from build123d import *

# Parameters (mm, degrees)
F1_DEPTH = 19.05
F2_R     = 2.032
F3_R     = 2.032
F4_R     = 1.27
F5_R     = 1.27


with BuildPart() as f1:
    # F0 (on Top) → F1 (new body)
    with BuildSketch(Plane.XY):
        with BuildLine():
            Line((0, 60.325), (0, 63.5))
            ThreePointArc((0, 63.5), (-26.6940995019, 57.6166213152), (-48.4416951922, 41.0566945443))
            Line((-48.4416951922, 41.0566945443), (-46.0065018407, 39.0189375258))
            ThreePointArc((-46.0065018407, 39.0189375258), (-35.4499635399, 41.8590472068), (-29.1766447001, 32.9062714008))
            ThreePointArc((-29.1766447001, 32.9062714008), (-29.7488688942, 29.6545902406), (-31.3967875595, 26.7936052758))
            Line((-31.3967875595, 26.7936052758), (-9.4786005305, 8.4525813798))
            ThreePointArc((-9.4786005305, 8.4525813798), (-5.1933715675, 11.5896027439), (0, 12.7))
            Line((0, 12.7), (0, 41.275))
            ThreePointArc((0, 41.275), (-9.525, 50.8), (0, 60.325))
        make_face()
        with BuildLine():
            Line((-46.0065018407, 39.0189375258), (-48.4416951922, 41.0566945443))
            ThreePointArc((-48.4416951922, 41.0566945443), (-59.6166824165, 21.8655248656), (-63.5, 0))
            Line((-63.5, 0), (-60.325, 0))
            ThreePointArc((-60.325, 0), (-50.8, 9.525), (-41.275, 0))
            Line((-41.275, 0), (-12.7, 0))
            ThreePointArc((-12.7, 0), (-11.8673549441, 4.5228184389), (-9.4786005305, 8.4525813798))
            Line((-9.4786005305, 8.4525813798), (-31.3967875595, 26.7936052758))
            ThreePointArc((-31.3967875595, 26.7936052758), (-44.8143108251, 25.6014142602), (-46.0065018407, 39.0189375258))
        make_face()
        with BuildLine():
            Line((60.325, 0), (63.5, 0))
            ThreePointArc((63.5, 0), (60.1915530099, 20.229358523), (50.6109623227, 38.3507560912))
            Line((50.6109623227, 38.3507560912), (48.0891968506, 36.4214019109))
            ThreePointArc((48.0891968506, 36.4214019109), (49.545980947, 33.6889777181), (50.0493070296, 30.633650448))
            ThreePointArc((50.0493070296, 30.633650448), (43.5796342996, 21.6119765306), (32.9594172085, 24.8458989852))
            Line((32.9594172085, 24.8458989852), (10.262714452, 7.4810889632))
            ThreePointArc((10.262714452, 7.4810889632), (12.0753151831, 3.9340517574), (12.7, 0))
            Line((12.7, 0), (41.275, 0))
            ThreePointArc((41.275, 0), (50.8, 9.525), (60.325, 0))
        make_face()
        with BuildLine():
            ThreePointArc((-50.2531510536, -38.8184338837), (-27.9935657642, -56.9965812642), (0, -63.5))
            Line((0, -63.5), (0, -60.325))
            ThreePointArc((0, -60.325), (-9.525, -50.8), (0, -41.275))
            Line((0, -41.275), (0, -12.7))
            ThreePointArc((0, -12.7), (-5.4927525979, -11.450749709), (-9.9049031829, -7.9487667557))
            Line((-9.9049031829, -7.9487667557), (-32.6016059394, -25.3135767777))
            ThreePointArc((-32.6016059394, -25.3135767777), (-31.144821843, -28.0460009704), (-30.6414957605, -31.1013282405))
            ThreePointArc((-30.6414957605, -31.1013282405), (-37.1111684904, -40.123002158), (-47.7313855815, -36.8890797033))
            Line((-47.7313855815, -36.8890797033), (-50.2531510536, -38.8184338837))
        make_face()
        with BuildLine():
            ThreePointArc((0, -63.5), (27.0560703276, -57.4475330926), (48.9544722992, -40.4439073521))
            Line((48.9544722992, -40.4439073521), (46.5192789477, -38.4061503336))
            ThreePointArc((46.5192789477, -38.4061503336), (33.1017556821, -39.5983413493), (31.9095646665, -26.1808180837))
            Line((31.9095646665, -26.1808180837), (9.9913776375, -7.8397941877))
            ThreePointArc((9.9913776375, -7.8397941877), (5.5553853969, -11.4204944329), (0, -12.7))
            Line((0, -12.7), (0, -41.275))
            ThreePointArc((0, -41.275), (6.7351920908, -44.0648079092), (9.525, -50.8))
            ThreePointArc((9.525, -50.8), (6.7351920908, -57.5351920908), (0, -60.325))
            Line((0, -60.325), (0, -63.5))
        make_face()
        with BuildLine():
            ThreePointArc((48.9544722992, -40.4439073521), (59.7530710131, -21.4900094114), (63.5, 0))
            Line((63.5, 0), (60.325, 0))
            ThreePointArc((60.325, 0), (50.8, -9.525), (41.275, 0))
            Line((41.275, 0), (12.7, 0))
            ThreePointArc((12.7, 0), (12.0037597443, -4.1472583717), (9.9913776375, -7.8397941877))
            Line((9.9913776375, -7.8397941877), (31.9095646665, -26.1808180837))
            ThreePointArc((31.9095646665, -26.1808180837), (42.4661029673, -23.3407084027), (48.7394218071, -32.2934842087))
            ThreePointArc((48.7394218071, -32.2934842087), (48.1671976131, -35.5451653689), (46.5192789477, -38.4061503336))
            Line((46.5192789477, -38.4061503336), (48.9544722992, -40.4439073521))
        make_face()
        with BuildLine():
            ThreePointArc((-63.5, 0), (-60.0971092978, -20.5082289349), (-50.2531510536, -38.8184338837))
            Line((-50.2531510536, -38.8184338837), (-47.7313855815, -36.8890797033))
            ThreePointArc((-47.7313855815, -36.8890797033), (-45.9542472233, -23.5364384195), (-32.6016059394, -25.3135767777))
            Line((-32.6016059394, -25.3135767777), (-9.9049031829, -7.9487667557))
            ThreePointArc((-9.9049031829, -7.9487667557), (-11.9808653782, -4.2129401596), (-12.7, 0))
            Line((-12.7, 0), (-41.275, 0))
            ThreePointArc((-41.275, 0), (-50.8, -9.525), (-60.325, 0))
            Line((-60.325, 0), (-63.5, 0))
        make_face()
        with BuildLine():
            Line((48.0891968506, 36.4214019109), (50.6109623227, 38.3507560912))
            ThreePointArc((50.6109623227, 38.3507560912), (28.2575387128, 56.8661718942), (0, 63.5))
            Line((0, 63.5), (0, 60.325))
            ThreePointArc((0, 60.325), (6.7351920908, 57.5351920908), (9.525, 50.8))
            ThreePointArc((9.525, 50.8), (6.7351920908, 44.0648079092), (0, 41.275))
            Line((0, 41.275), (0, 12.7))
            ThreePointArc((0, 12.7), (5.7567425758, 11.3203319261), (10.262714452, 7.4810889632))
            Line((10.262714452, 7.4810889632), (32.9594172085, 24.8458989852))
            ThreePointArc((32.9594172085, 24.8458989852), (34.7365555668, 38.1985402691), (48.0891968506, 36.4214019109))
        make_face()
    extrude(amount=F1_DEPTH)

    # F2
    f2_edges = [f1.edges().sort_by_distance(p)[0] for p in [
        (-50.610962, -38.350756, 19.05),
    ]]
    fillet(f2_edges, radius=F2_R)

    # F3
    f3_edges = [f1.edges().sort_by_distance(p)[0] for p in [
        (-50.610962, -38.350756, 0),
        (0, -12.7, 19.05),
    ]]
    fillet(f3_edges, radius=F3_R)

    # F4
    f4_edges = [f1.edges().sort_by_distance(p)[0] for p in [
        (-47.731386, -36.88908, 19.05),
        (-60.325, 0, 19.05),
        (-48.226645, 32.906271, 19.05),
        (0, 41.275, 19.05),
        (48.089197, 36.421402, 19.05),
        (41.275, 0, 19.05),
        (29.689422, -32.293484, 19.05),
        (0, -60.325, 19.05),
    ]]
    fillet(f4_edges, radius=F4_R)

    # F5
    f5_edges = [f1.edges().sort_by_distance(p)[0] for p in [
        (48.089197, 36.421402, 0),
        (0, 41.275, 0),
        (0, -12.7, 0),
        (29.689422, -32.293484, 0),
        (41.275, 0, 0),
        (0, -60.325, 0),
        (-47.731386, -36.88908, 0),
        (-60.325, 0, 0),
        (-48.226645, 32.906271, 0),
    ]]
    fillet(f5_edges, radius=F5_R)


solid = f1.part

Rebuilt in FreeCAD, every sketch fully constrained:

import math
import FreeCAD as App
import Part
import Sketcher
Q = App.Units.Quantity


def edges_at(feature, points):
    """Names of the edges that pass closest to the given points."""
    edges = feature.Shape.Edges
    near = lambda p: min(range(len(edges)), key=lambda i: edges[i].distToShape(Part.Vertex(*p))[0])
    return sorted({f"Edge{near(p) + 1}" for p in points})

doc = App.newDocument("Part")
body = doc.addObject("PartDesign::Body", "Body")

# Sketch on XY plane
sketch1 = body.newObject("Sketcher::SketchObject", "Sketch")
sketch1.AttachmentSupport = (doc.getObject("XY_Plane"), [""])
sketch1.MapMode = "FlatFace"
sketch1.addGeometry([
    Part.ArcOfCircle(Part.Circle(App.Vector(0, 0, 0), App.Vector(0, 0, 1), 64), math.radians(90), math.radians(140)),  # 0
    Part.ArcOfCircle(Part.Circle(App.Vector(0, 0, 0), App.Vector(0, 0, 1), 64), math.radians(140), math.radians(180)),  # 1
    Part.ArcOfCircle(Part.Circle(App.Vector(0, 0, 0), App.Vector(0, 0, 1), 64), math.radians(180), math.radians(320)),  # 2
    Part.ArcOfCircle(Part.Circle(App.Vector(0, 0, 0), App.Vector(0, 0, 1), 64), math.radians(-40), math.radians(0)),  # 3
    Part.ArcOfCircle(Part.Circle(App.Vector(0, 0, 0), App.Vector(0, 0, 1), 64), math.radians(0), math.radians(37)),  # 4
    Part.ArcOfCircle(Part.Circle(App.Vector(0, 0, 0), App.Vector(0, 0, 1), 63), math.radians(37), math.radians(90)),  # 5
    Part.ArcOfCircle(Part.Circle(App.Vector(41, 31, 0), App.Vector(0, 0, 1), 10), math.radians(0), math.radians(37)),  # 6
    Part.ArcOfCircle(Part.Circle(App.Vector(41, 31, 0), App.Vector(0, 0, 1), 10), math.radians(-143), math.radians(0)),  # 7
    Part.ArcOfCircle(Part.Circle(App.Vector(41, 31, 0), App.Vector(0, 0, 1), 10), math.radians(37), math.radians(217)),  # 8
    Part.ArcOfCircle(Part.Circle(App.Vector(0, 0, 0), App.Vector(0, 0, 1), 13), math.radians(0), math.radians(36)),  # 9
    Part.ArcOfCircle(Part.Circle(App.Vector(0, 0, 0), App.Vector(0, 0, 1), 13), math.radians(-38), math.radians(0)),  # 10
    Part.ArcOfCircle(Part.Circle(App.Vector(0, 0, 0), App.Vector(0, 0, 1), 13), math.radians(-141), math.radians(-38)),  # 11
    Part.ArcOfCircle(Part.Circle(App.Vector(0, 0, 0), App.Vector(0, 0, 1), 13), math.radians(180), math.radians(219)),  # 12
    Part.ArcOfCircle(Part.Circle(App.Vector(0, 0, 0), App.Vector(0, 0, 1), 13), math.radians(138), math.radians(180)),  # 13
    Part.ArcOfCircle(Part.Circle(App.Vector(0, 0, 0), App.Vector(0, 0, 1), 13), math.radians(90), math.radians(138)),  # 14
    Part.ArcOfCircle(Part.Circle(App.Vector(0, 0, 0), App.Vector(0, 0, 1), 13), math.radians(36), math.radians(90)),  # 15
    Part.Circle(App.Vector(0, 51, 0), App.Vector(0, 0, 1), 10),  # 16
    Part.Circle(App.Vector(-51, 0, 0), App.Vector(0, 0, 1), 10),  # 17
    Part.ArcOfCircle(Part.Circle(App.Vector(-39, 33, 0), App.Vector(0, 0, 1), 10), math.radians(-40), math.radians(0)),  # 18
    Part.ArcOfCircle(Part.Circle(App.Vector(-39, 33, 0), App.Vector(0, 0, 1), 10), math.radians(0), math.radians(320)),  # 19
    Part.ArcOfCircle(Part.Circle(App.Vector(-40, -31, 0), App.Vector(0, 0, 1), 10), math.radians(37), math.radians(217)),  # 20
    Part.ArcOfCircle(Part.Circle(App.Vector(-40, -31, 0), App.Vector(0, 0, 1), 10), math.radians(0), math.radians(37)),  # 21
    Part.ArcOfCircle(Part.Circle(App.Vector(-40, -31, 0), App.Vector(0, 0, 1), 10), math.radians(-143), math.radians(0)),  # 22
    Part.ArcOfCircle(Part.Circle(App.Vector(39, -32, 0), App.Vector(0, 0, 1), 10), math.radians(0), math.radians(140)),  # 23
    Part.ArcOfCircle(Part.Circle(App.Vector(39, -32, 0), App.Vector(0, 0, 1), 10), math.radians(-40), math.radians(0)),  # 24
    Part.ArcOfCircle(Part.Circle(App.Vector(39, -32, 0), App.Vector(0, 0, 1), 10), math.radians(140), math.radians(320)),  # 25
    Part.Circle(App.Vector(0, -51, 0), App.Vector(0, 0, 1), 10),  # 26
    Part.Circle(App.Vector(51, 0, 0), App.Vector(0, 0, 1), 10),  # 27
], False)
sketch1.addConstraint([
    Sketcher.Constraint("Tangent", 0, 2, 1, 1),
    Sketcher.Constraint("Tangent", 1, 2, 2, 1),
    Sketcher.Constraint("Tangent", 2, 2, 3, 1),
    Sketcher.Constraint("Tangent", 3, 2, 4, 1),
    Sketcher.Constraint("Tangent", 4, 2, 5, 1),
    Sketcher.Constraint("Tangent", 5, 2, 0, 1),
    Sketcher.Constraint("Tangent", 6, 1, 7, 2),
    Sketcher.Constraint("Tangent", 7, 1, 8, 2),
    Sketcher.Constraint("Tangent", 8, 1, 6, 2),
    Sketcher.Constraint("Tangent", 9, 1, 10, 2),
    Sketcher.Constraint("Tangent", 10, 1, 11, 2),
    Sketcher.Constraint("Tangent", 11, 1, 12, 2),
    Sketcher.Constraint("Tangent", 12, 1, 13, 2),
    Sketcher.Constraint("Tangent", 13, 1, 14, 2),
    Sketcher.Constraint("Tangent", 14, 1, 15, 2),
    Sketcher.Constraint("Tangent", 15, 1, 9, 2),
    Sketcher.Constraint("Tangent", 18, 1, 19, 2),
    Sketcher.Constraint("Coincident", 19, 1, 18, 2),
    Sketcher.Constraint("Tangent", 20, 1, 21, 2),
    Sketcher.Constraint("Tangent", 21, 1, 22, 2),
    Sketcher.Constraint("Tangent", 22, 1, 20, 2),
    Sketcher.Constraint("Tangent", 23, 1, 24, 2),
    Sketcher.Constraint("Tangent", 24, 1, 25, 2),
    Sketcher.Constraint("Tangent", 25, 1, 23, 2),
    Sketcher.Constraint("Coincident", 0, 3, -1, 1),
    Sketcher.Constraint("Coincident", 2, 3, -1, 1),
    Sketcher.Constraint("Coincident", 9, 3, -1, 1),
    Sketcher.Constraint("Coincident", 11, 3, -1, 1),
    Sketcher.Constraint("Coincident", 13, 3, -1, 1),
    Sketcher.Constraint("Equal", 2, 3),
    Sketcher.Constraint("Equal", 8, 16),
    Sketcher.Constraint("Equal", 16, 17),
    Sketcher.Constraint("Equal", 17, 18),
    Sketcher.Constraint("Equal", 19, 20),
    Sketcher.Constraint("Equal", 22, 23),
    Sketcher.Constraint("Equal", 25, 26),
    Sketcher.Constraint("Equal", 26, 27),
    Sketcher.Constraint("Symmetric", 16, 3, 26, 3, -1, 1),
    Sketcher.Constraint("Symmetric", 17, 3, 27, 3, -1, 1),
    Sketcher.Constraint("PointOnObject", 16, 3, -2),
    Sketcher.Constraint("PointOnObject", 17, 3, -1),
    Sketcher.Constraint("PointOnObject", 1, 2, -1),
    Sketcher.Constraint("PointOnObject", 3, 2, -1),
    Sketcher.Constraint("PointOnObject", 5, 2, -2),
    Sketcher.Constraint("PointOnObject", 9, 1, -1),
    Sketcher.Constraint("PointOnObject", 12, 1, -1),
    Sketcher.Constraint("PointOnObject", 14, 1, -2),
    Sketcher.Constraint("Horizontal", 8, 3, 6, 1),
    Sketcher.Constraint("Horizontal", 18, 3, 19, 1),
    Sketcher.Constraint("Horizontal", 22, 3, 21, 1),
    Sketcher.Constraint("Horizontal", 25, 3, 23, 1),
    Sketcher.Constraint("Radius", 0, Q("2.5 in")),
    Sketcher.Constraint("Radius", 9, Q("0.5 in")),
    Sketcher.Constraint("Diameter", 16, Q("0.75 in")),
    Sketcher.Constraint("DistanceY", -1, 1, 16, 3, Q("2 in")),
    Sketcher.Constraint("DistanceX", 17, 3, -1, 1, Q("2 in")),
    Sketcher.Constraint("DistanceY", -1, 1, 7, 1, Q("24.845899 mm")),
    Sketcher.Constraint("DistanceY", -1, 1, 8, 1, Q("36.421402 mm")),
    Sketcher.Constraint("DistanceX", 13, 1, -1, 1, Q("9.478601 mm")),
    Sketcher.Constraint("DistanceY", -1, 1, 6, 3, Q("30.63365 mm")),
    Sketcher.Constraint("DistanceY", -1, 1, 18, 3, Q("32.906271 mm")),
    Sketcher.Constraint("DistanceY", 20, 3, -1, 1, Q("31.101328 mm")),
    Sketcher.Constraint("DistanceX", -1, 1, 23, 3, Q("39.214422 mm")),
    Sketcher.Constraint("DistanceY", -1, 1, 15, 1, Q("7.481089 mm")),
    Sketcher.Constraint("DistanceY", 22, 1, -1, 1, Q("36.88908 mm")),
    Sketcher.Constraint("DistanceX", -1, 1, 24, 1, Q("46.519279 mm")),
    Sketcher.Constraint("DistanceY", 24, 1, -1, 1, Q("38.40615 mm")),
    Sketcher.Constraint("DistanceY", 25, 1, -1, 1, Q("26.180818 mm")),
    Sketcher.Constraint("DistanceX", 0, 2, 18, 3, Q("9.74005 mm")),
    Sketcher.Constraint("DistanceX", 24, 3, 2, 2, Q("9.74005 mm")),
    Sketcher.Constraint("DistanceY", 18, 1, 0, 2, Q("14.263089 mm")),
    Sketcher.Constraint("DistanceX", 21, 3, 20, 1, Q("7.56489 mm")),
    Sketcher.Constraint("DistanceY", 20, 1, 11, 1, Q("17.36481 mm")),
    Sketcher.Constraint("DistanceX", -1, 1, 6, 3, Q("40.524307 mm")),
    Sketcher.Constraint("DistanceX", 18, 3, -1, 1, Q("38.701645 mm")),
    Sketcher.Constraint("DistanceX", 20, 3, -1, 1, Q("40.166496 mm")),
    Sketcher.Constraint("DistanceX", -1, 1, 4, 2, Q("50.610962 mm")),
    Sketcher.Constraint("DistanceX", -1, 1, 10, 1, Q("9.991378 mm")),
])
pad1 = body.newObject("PartDesign::Pad", "Pad")
pad1.Profile = sketch1
pad1.Length = Q("0.75 in")
doc.recompute()

fillet = body.newObject("PartDesign::Fillet", "Fillet")
fillet.Base = (pad1, edges_at(pad1, [(-21.49, -59.753, 19.05)]))
fillet.Radius = Q("0.08 in")
doc.recompute()

fillet2 = body.newObject("PartDesign::Fillet", "Fillet001")
fillet2.Base = (fillet, edges_at(fillet, [(-21.49, -59.753, 0), (0.07, -12.7, 19.05)]))
fillet2.Radius = Q("0.08 in")
doc.recompute()

fillet3 = body.newObject("PartDesign::Fillet", "Fillet002")
fillet3.Base = (fillet2, edges_at(fillet2, [
    (-37.111, -40.123, 19.05),
    (-60.325, 0, 19.05),
    (-47.654, 36.158, 19.05),
    (-9.525, 50.8, 19.05),
    (34.737, 38.199, 19.05),
    (41.275, 0, 19.05),
    (33.102, -39.598, 19.05),
    (-9.525, -50.8, 19.05),
]))
fillet3.Radius = Q("0.05 in")
doc.recompute()

fillet4 = body.newObject("PartDesign::Fillet", "Fillet003")
fillet4.Base = (fillet3, edges_at(fillet3, [
    (34.737, 38.199, 0),
    (-9.525, 50.8, 0),
    (0.07, -12.7, 0),
    (33.102, -39.598, 0),
    (41.275, 0, 0),
    (-9.525, -50.8, 0),
    (-37.111, -40.123, 0),
    (-60.325, 0, 0),
    (-47.654, 36.158, 0),
]))
fillet4.Radius = Q("0.05 in")

doc.recompute()
